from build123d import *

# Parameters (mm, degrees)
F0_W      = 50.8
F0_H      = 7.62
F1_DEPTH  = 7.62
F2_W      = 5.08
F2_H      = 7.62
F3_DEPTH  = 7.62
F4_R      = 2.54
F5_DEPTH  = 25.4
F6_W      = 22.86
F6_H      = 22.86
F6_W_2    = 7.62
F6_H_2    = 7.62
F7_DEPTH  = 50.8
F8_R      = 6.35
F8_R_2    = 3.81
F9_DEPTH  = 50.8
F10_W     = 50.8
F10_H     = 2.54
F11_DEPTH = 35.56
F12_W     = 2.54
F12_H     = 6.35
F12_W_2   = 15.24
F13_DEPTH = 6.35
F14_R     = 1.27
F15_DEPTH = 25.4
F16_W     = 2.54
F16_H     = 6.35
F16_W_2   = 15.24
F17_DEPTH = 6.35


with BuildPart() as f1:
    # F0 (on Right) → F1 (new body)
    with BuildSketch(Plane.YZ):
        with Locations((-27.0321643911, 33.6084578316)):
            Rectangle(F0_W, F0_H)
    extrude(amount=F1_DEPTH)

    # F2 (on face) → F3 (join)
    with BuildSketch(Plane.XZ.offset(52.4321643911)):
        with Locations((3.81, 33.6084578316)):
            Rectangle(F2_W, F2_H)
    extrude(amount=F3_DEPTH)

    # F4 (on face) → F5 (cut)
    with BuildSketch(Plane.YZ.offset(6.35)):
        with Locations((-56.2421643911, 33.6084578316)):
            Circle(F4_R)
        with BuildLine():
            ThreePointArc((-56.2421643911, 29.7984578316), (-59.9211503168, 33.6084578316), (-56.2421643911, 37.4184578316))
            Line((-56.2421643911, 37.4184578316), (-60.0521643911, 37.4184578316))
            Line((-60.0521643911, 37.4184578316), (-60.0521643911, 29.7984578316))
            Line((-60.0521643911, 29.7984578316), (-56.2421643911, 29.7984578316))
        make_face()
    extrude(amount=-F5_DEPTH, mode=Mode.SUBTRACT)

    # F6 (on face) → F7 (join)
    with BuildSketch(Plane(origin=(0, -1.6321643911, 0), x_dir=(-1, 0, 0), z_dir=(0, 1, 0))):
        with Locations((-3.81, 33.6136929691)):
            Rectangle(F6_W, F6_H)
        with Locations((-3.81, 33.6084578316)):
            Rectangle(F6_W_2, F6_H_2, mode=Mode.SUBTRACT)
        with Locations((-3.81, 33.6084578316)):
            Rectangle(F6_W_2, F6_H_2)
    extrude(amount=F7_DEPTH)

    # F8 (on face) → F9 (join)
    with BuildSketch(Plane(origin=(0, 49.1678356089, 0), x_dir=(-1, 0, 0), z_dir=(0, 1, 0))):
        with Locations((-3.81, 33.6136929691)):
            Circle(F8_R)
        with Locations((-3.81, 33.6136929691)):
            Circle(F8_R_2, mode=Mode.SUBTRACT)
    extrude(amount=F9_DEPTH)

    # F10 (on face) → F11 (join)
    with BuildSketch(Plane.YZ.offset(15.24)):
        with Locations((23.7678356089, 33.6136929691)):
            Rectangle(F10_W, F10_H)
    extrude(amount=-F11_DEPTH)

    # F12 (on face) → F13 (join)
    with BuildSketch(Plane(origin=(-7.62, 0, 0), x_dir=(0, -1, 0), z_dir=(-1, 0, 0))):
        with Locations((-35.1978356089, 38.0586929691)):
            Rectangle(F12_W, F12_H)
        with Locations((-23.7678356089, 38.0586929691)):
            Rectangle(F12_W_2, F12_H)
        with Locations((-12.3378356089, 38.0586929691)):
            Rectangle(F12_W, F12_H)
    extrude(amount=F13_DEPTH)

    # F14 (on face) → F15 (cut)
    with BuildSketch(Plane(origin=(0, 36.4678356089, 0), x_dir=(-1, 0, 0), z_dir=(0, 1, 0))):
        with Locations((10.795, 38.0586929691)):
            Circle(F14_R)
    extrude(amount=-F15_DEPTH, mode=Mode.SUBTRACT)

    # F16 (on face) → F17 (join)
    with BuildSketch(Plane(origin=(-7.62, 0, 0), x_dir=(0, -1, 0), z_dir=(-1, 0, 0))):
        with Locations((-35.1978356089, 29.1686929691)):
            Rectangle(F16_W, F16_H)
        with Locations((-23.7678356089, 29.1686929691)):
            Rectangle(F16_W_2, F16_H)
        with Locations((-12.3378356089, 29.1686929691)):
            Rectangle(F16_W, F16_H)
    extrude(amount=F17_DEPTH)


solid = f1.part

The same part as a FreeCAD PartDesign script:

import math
import FreeCAD as App
import Part
import Sketcher
from FreeCAD import Vector
Q = App.Units.Quantity

doc = App.newDocument("Part")
body = doc.addObject("PartDesign::Body", "Body")

sketch1 = body.newObject("Sketcher::SketchObject", "Sketch")
sketch1.AttachmentSupport = (doc.getObject("YZ_Plane"), [""])
sketch1.MapMode = "FlatFace"
sketch1.addGeometry(Part.LineSegment(Vector(-52, 37, 0), Vector(-52, 30, 0)), False)
sketch1.addGeometry(Part.LineSegment(Vector(-52, 30, 0), Vector(-2, 30, 0)), False)
sketch1.addGeometry(Part.LineSegment(Vector(-2, 30, 0), Vector(-2, 37, 0)), False)
sketch1.addGeometry(Part.LineSegment(Vector(-2, 37, 0), Vector(-52, 37, 0)), False)
sketch1.addConstraint(Sketcher.Constraint("Coincident", 0, 2, 1, 1))
sketch1.addConstraint(Sketcher.Constraint("Coincident", 1, 2, 2, 1))
sketch1.addConstraint(Sketcher.Constraint("Coincident", 2, 2, 3, 1))
sketch1.addConstraint(Sketcher.Constraint("Coincident", 3, 2, 0, 1))
sketch1.addConstraint(Sketcher.Constraint("Vertical", 0))
sketch1.addConstraint(Sketcher.Constraint("Horizontal", 1))
sketch1.addConstraint(Sketcher.Constraint("Vertical", 2))
sketch1.addConstraint(Sketcher.Constraint("Horizontal", 3))
sketch1.addConstraint(Sketcher.Constraint("DistanceX", 1, 1, 1, 2, Q("2 in")))
sketch1.addConstraint(Sketcher.Constraint("DistanceY", 0, 2, 0, 1, Q("0.3 in")))
sketch1.addConstraint(Sketcher.Constraint("DistanceX", 0, 2, -1, 1, Q("52.432164 mm")))
sketch1.addConstraint(Sketcher.Constraint("DistanceY", -1, 1, 0, 2, Q("29.798458 mm")))
pad1 = body.newObject("PartDesign::Pad", "Pad")
pad1.Profile = sketch1
pad1.Length = Q("0.3 in")

sketch2 = body.newObject("Sketcher::SketchObject", "Sketch001")
sketch2.AttachmentSupport = (doc.getObject("XZ_Plane"), [""])
sketch2.MapMode = "FlatFace"
sketch2.AttachmentOffset = App.Placement(Vector(0, 0, 52.432164), App.Rotation())
sketch2.addGeometry(Part.LineSegment(Vector(1, 37, 0), Vector(1, 30, 0)), False)
sketch2.addGeometry(Part.LineSegment(Vector(1, 30, 0), Vector(6, 30, 0)), False)
sketch2.addGeometry(Part.LineSegment(Vector(6, 30, 0), Vector(6, 37, 0)), False)
sketch2.addGeometry(Part.LineSegment(Vector(6, 37, 0), Vector(1, 37, 0)), False)
sketch2.addConstraint(Sketcher.Constraint("Coincident", 0, 2, 1, 1))
sketch2.addConstraint(Sketcher.Constraint("Coincident", 1, 2, 2, 1))
sketch2.addConstraint(Sketcher.Constraint("Coincident", 2, 2, 3, 1))
sketch2.addConstraint(Sketcher.Constraint("Coincident", 3, 2, 0, 1))
sketch2.addConstraint(Sketcher.Constraint("Vertical", 0))
sketch2.addConstraint(Sketcher.Constraint("Horizontal", 1))
sketch2.addConstraint(Sketcher.Constraint("Vertical", 2))
sketch2.addConstraint(Sketcher.Constraint("Horizontal", 3))
sketch2.addConstraint(Sketcher.Constraint("DistanceX", 1, 1, 1, 2, Q("0.2 in")))
sketch2.addConstraint(Sketcher.Constraint("DistanceY", 0, 2, 0, 1, Q("0.3 in")))
sketch2.addConstraint(Sketcher.Constraint("DistanceX", -1, 1, 0, 2, Q("0.05 in")))
sketch2.addConstraint(Sketcher.Constraint("DistanceY", -1, 1, 0, 2, Q("29.798458 mm")))
pad2 = body.newObject("PartDesign::Pad", "Pad001")
pad2.Profile = sketch2
pad2.Length = Q("0.3 in")

sketch3 = body.newObject("Sketcher::SketchObject", "Sketch002")
sketch3.AttachmentSupport = (doc.getObject("YZ_Plane"), [""])
sketch3.MapMode = "FlatFace"
sketch3.AttachmentOffset = App.Placement(Vector(0, 0, 0.25 * 25.4), App.Rotation())
sketch3.addGeometry(Part.Circle(Vector(-56.2, 33.6, 0), Vector(0, 0, 1), 2.5), False)
sketch3.addGeometry(Part.ArcOfCircle(Part.Circle(Vector(-56.1, 33.6, 0), Vector(0, 0, 1), 3.8), math.radians(92), math.radians(268)), False)
sketch3.addGeometry(Part.LineSegment(Vector(-56.2, 37.4, 0), Vector(-60.1, 37.4, 0)), False)
sketch3.addGeometry(Part.LineSegment(Vector(-60.1, 37.4, 0), Vector(-60.1, 29.8, 0)), False)
sketch3.addGeometry(Part.LineSegment(Vector(-60.1, 29.8, 0), Vector(-56.2, 29.8, 0)), False)
sketch3.addConstraint(Sketcher.Constraint("Coincident", 1, 1, 2, 1))
sketch3.addConstraint(Sketcher.Constraint("Coincident", 2, 2, 3, 1))
sketch3.addConstraint(Sketcher.Constraint("Coincident", 3, 2, 4, 1))
sketch3.addConstraint(Sketcher.Constraint("Coincident", 4, 2, 1, 2))
sketch3.addConstraint(Sketcher.Constraint("Horizontal", 2))
sketch3.addConstraint(Sketcher.Constraint("Vertical", 3))
sketch3.addConstraint(Sketcher.Constraint("Horizontal", 4))
sketch3.addConstraint(Sketcher.Constraint("Horizontal", 0, 3, 1, 3))
sketch3.addConstraint(Sketcher.Constraint("Vertical", 0, 3, 1, 1))
sketch3.addConstraint(Sketcher.Constraint("Vertical", 1, 1, 4, 2))
sketch3.addConstraint(Sketcher.Constraint("Diameter", 0, Q("0.2 in")))
sketch3.addConstraint(Sketcher.Constraint("DistanceY", 3, 2, 3, 1, Q("0.3 in")))
sketch3.addConstraint(Sketcher.Constraint("DistanceX", 2, 2, 2, 1, Q("0.15 in")))
sketch3.addConstraint(Sketcher.Constraint("Radius", 1, Q("3.812333 mm")))
sketch3.addConstraint(Sketcher.Constraint("DistanceX", 0, 3, -1, 1, Q("56.242164 mm")))
sketch3.addConstraint(Sketcher.Constraint("DistanceY", -1, 1, 0, 3, Q("33.608458 mm")))
pocket1 = body.newObject("PartDesign::Pocket", "Pocket")
pocket1.Profile = sketch3
pocket1.Length = Q("1 in")

sketch4 = body.newObject("Sketcher::SketchObject", "Sketch003")
sketch4.AttachmentSupport = (doc.getObject("XZ_Plane"), [""])
sketch4.MapMode = "FlatFace"
sketch4.AttachmentOffset = App.Placement(Vector(0, 0, 1.632164), App.Rotation())
sketch4.addGeometry(Part.LineSegment(Vector(15, 45, 0), Vector(15, 22, 0)), False)
sketch4.addGeometry(Part.LineSegment(Vector(15, 22, 0), Vector(-8, 22, 0)), False)
sketch4.addGeometry(Part.LineSegment(Vector(-8, 22, 0), Vector(-8, 45, 0)), False)
sketch4.addGeometry(Part.LineSegment(Vector(-8, 45, 0), Vector(15, 45, 0)), False)
sketch4.addConstraint(Sketcher.Constraint("Coincident", 0, 2, 1, 1))
sketch4.addConstraint(Sketcher.Constraint("Coincident", 1, 2, 2, 1))
sketch4.addConstraint(Sketcher.Constraint("Coincident", 2, 2, 3, 1))
sketch4.addConstraint(Sketcher.Constraint("Coincident", 3, 2, 0, 1))
sketch4.addConstraint(Sketcher.Constraint("Vertical", 0))
sketch4.addConstraint(Sketcher.Constraint("Horizontal", 1))
sketch4.addConstraint(Sketcher.Constraint("Vertical", 2))
sketch4.addConstraint(Sketcher.Constraint("Horizontal", 3))
sketch4.addConstraint(Sketcher.Constraint("Equal", 3, 0))
sketch4.addConstraint(Sketcher.Constraint("DistanceX", 1, 2, 1, 1, Q("0.9 in")))
sketch4.addConstraint(Sketcher.Constraint("DistanceX", -1, 1, 0, 2, Q("0.6 in")))
sketch4.addConstraint(Sketcher.Constraint("DistanceY", -1, 1, 0, 2, Q("22.183693 mm")))
pad3 = body.newObject("PartDesign::Pad", "Pad002")
pad3.Profile = sketch4
pad3.Length = Q("2 in")
pad3.Reversed = True

sketch5 = body.newObject("Sketcher::SketchObject", "Sketch004")
sketch5.AttachmentSupport = (doc.getObject("XZ_Plane"), [""])
sketch5.MapMode = "FlatFace"
sketch5.AttachmentOffset = App.Placement(Vector(0, 0, -49.167836), App.Rotation())
sketch5.addGeometry(Part.Circle(Vector(3.8, 33.6, 0), Vector(0, 0, 1), 6.3), False)
sketch5.addGeometry(Part.Circle(Vector(3.8, 33.6, 0), Vector(0, 0, 1), 3.8), False)
sketch5.addConstraint(Sketcher.Constraint("Coincident", 1, 3, 0, 3))
sketch5.addConstraint(Sketcher.Constraint("Diameter", 0, Q("0.5 in")))
sketch5.addConstraint(Sketcher.Constraint("Diameter", 1, Q("0.3 in")))
sketch5.addConstraint(Sketcher.Constraint("DistanceX", -1, 1, 0, 3, Q("0.15 in")))
sketch5.addConstraint(Sketcher.Constraint("DistanceY", -1, 1, 0, 3, Q("33.613693 mm")))
pad4 = body.newObject("PartDesign::Pad", "Pad003")
pad4.Profile = sketch5
pad4.Length = Q("2 in")
pad4.Reversed = True

sketch6 = body.newObject("Sketcher::SketchObject", "Sketch005")
sketch6.AttachmentSupport = (doc.getObject("YZ_Plane"), [""])
sketch6.MapMode = "FlatFace"
sketch6.AttachmentOffset = App.Placement(Vector(0, 0, 0.6 * 25.4), App.Rotation())
sketch6.addGeometry(Part.LineSegment(Vector(-1.6, 34.9, 0), Vector(-1.6, 32.3, 0)), False)
sketch6.addGeometry(Part.LineSegment(Vector(-1.6, 32.3, 0), Vector(49.2, 32.3, 0)), False)
sketch6.addGeometry(Part.LineSegment(Vector(49.2, 32.3, 0), Vector(49.2, 34.9, 0)), False)
sketch6.addGeometry(Part.LineSegment(Vector(49.2, 34.9, 0), Vector(-1.6, 34.9, 0)), False)
sketch6.addConstraint(Sketcher.Constraint("Coincident", 0, 2, 1, 1))
sketch6.addConstraint(Sketcher.Constraint("Coincident", 1, 2, 2, 1))
sketch6.addConstraint(Sketcher.Constraint("Coincident", 2, 2, 3, 1))
sketch6.addConstraint(Sketcher.Constraint("Coincident", 3, 2, 0, 1))
sketch6.addConstraint(Sketcher.Constraint("Vertical", 0))
sketch6.addConstraint(Sketcher.Constraint("Horizontal", 1))
sketch6.addConstraint(Sketcher.Constraint("Vertical", 2))
sketch6.addConstraint(Sketcher.Constraint("Horizontal", 3))
sketch6.addConstraint(Sketcher.Constraint("DistanceX", 1, 1, 1, 2, Q("2 in")))
sketch6.addConstraint(Sketcher.Constraint("DistanceY", 0, 2, 0, 1, Q("0.1 in")))
sketch6.addConstraint(Sketcher.Constraint("DistanceX", 0, 2, -1, 1, Q("1.632164 mm")))
sketch6.addConstraint(Sketcher.Constraint("DistanceY", -1, 1, 0, 2, Q("32.343693 mm")))
pad5 = body.newObject("PartDesign::Pad", "Pad004")
pad5.Profile = sketch6
pad5.Length = Q("1.4 in")
pad5.Reversed = True

sketch7 = body.newObject("Sketcher::SketchObject", "Sketch006")
sketch7.AttachmentSupport = (doc.getObject("YZ_Plane"), [""])
sketch7.MapMode = "FlatFace"
sketch7.AttachmentOffset = App.Placement(Vector(0, 0, -0.3 * 25.4), App.Rotation())
sketch7.addGeometry(Part.LineSegment(Vector(36.5, 41.2, 0), Vector(36.5, 34.9, 0)), False)
sketch7.addGeometry(Part.LineSegment(Vector(36.5, 34.9, 0), Vector(33.9, 34.9, 0)), False)
sketch7.addGeometry(Part.LineSegment(Vector(33.9, 34.9, 0), Vector(33.9, 41.2, 0)), False)
sketch7.addGeometry(Part.LineSegment(Vector(33.9, 41.2, 0), Vector(36.5, 41.2, 0)), False)
sketch7.addGeometry(Part.LineSegment(Vector(31.4, 41.2, 0), Vector(31.4, 34.9, 0)), False)
sketch7.addGeometry(Part.LineSegment(Vector(31.4, 34.9, 0), Vector(16.1, 34.9, 0)), False)
sketch7.addGeometry(Part.LineSegment(Vector(16.1, 34.9, 0), Vector(16.1, 41.2, 0)), False)
sketch7.addGeometry(Part.LineSegment(Vector(16.1, 41.2, 0), Vector(31.4, 41.2, 0)), False)
sketch7.addGeometry(Part.LineSegment(Vector(13.6, 41.2, 0), Vector(13.6, 34.9, 0)), False)
sketch7.addGeometry(Part.LineSegment(Vector(13.6, 34.9, 0), Vector(11.1, 34.9, 0)), False)
sketch7.addGeometry(Part.LineSegment(Vector(11.1, 34.9, 0), Vector(11.1, 41.2, 0)), False)
sketch7.addGeometry(Part.LineSegment(Vector(11.1, 41.2, 0), Vector(13.6, 41.2, 0)), False)
sketch7.addConstraint(Sketcher.Constraint("Coincident", 0, 2, 1, 1))
sketch7.addConstraint(Sketcher.Constraint("Coincident", 1, 2, 2, 1))
sketch7.addConstraint(Sketcher.Constraint("Coincident", 2, 2, 3, 1))
sketch7.addConstraint(Sketcher.Constraint("Coincident", 3, 2, 0, 1))
sketch7.addConstraint(Sketcher.Constraint("Coincident", 4, 2, 5, 1))
sketch7.addConstraint(Sketcher.Constraint("Coincident", 5, 2, 6, 1))
sketch7.addConstraint(Sketcher.Constraint("Coincident", 6, 2, 7, 1))
sketch7.addConstraint(Sketcher.Constraint("Coincident", 7, 2, 4, 1))
sketch7.addConstraint(Sketcher.Constraint("Coincident", 8, 2, 9, 1))
sketch7.addConstraint(Sketcher.Constraint("Coincident", 9, 2, 10, 1))
sketch7.addConstraint(Sketcher.Constraint("Coincident", 10, 2, 11, 1))
sketch7.addConstraint(Sketcher.Constraint("Coincident", 11, 2, 8, 1))
sketch7.addConstraint(Sketcher.Constraint("Vertical", 0))
sketch7.addConstraint(Sketcher.Constraint("Horizontal", 1))
sketch7.addConstraint(Sketcher.Constraint("Vertical", 2))
sketch7.addConstraint(Sketcher.Constraint("Horizontal", 3))
sketch7.addConstraint(Sketcher.Constraint("Vertical", 4))
sketch7.addConstraint(Sketcher.Constraint("Horizontal", 5))
sketch7.addConstraint(Sketcher.Constraint("Vertical", 6))
sketch7.addConstraint(Sketcher.Constraint("Horizontal", 7))
sketch7.addConstraint(Sketcher.Constraint("Vertical", 8))
sketch7.addConstraint(Sketcher.Constraint("Horizontal", 9))
sketch7.addConstraint(Sketcher.Constraint("Vertical", 10))
sketch7.addConstraint(Sketcher.Constraint("Horizontal", 11))
sketch7.addConstraint(Sketcher.Constraint("Horizontal", 1, 2, 4, 2))
sketch7.addConstraint(Sketcher.Constraint("Horizontal", 3, 2, 6, 2))
sketch7.addConstraint(Sketcher.Constraint("Horizontal", 5, 2, 8, 2))
sketch7.addConstraint(Sketcher.Constraint("Horizontal", 7, 2, 10, 2))
sketch7.addConstraint(Sketcher.Constraint("Equal", 3, 9))
sketch7.addConstraint(Sketcher.Constraint("DistanceX", 1, 2, 1, 1, Q("0.1 in")))
sketch7.addConstraint(Sketcher.Constraint("DistanceX", 5, 2, 5, 1, Q("0.6 in")))
sketch7.addConstraint(Sketcher.Constraint("DistanceY", 0, 2, 0, 1, Q("0.25 in")))
sketch7.addConstraint(Sketcher.Constraint("DistanceX", 4, 2, 1, 2, Q("0.1 in")))
sketch7.addConstraint(Sketcher.Constraint("DistanceX", 8, 2, 5, 2, Q("0.1 in")))
sketch7.addConstraint(Sketcher.Constraint("DistanceX", -1, 1, 0, 2, Q("36.467836 mm")))
sketch7.addConstraint(Sketcher.Constraint("DistanceY", -1, 1, 0, 2, Q("34.883693 mm")))
pad6 = body.newObject("PartDesign::Pad", "Pad005")
pad6.Profile = sketch7
pad6.Length = Q("0.25 in")
pad6.Reversed = True

sketch8 = body.newObject("Sketcher::SketchObject", "Sketch007")
sketch8.AttachmentSupport = (doc.getObject("XZ_Plane"), [""])
sketch8.MapMode = "FlatFace"
sketch8.AttachmentOffset = App.Placement(Vector(0, 0, -36.467836), App.Rotation())
sketch8.addGeometry(Part.Circle(Vector(-10.8, 38.1, 0), Vector(0, 0, 1), 1.3), False)
sketch8.addConstraint(Sketcher.Constraint("Diameter", 0, Q("0.1 in")))
sketch8.addConstraint(Sketcher.Constraint("DistanceX", 0, 3, -1, 1, Q("0.425 in")))
sketch8.addConstraint(Sketcher.Constraint("DistanceY", -1, 1, 0, 3, Q("38.058693 mm")))
pocket2 = body.newObject("PartDesign::Pocket", "Pocket001")
pocket2.Profile = sketch8
pocket2.Length = Q("1 in")
pocket2.Reversed = True

sketch9 = body.newObject("Sketcher::SketchObject", "Sketch008")
sketch9.AttachmentSupport = (doc.getObject("YZ_Plane"), [""])
sketch9.MapMode = "FlatFace"
sketch9.AttachmentOffset = App.Placement(Vector(0, 0, -0.3 * 25.4), App.Rotation())
sketch9.addGeometry(Part.LineSegment(Vector(36.5, 32.3, 0), Vector(36.5, 26, 0)), False)
sketch9.addGeometry(Part.LineSegment(Vector(36.5, 26, 0), Vector(33.9, 26, 0)), False)
sketch9.addGeometry(Part.LineSegment(Vector(33.9, 26, 0), Vector(33.9, 32.3, 0)), False)
sketch9.addGeometry(Part.LineSegment(Vector(33.9, 32.3, 0), Vector(36.5, 32.3, 0)), False)
sketch9.addGeometry(Part.LineSegment(Vector(31.4, 32.3, 0), Vector(31.4, 26, 0)), False)
sketch9.addGeometry(Part.LineSegment(Vector(31.4, 26, 0), Vector(16.1, 26, 0)), False)
sketch9.addGeometry(Part.LineSegment(Vector(16.1, 26, 0), Vector(16.1, 32.3, 0)), False)
sketch9.addGeometry(Part.LineSegment(Vector(16.1, 32.3, 0), Vector(31.4, 32.3, 0)), False)
sketch9.addGeometry(Part.LineSegment(Vector(13.6, 32.3, 0), Vector(13.6, 26, 0)), False)
sketch9.addGeometry(Part.LineSegment(Vector(13.6, 26, 0), Vector(11.1, 26, 0)), False)
sketch9.addGeometry(Part.LineSegment(Vector(11.1, 26, 0), Vector(11.1, 32.3, 0)), False)
sketch9.addGeometry(Part.LineSegment(Vector(11.1, 32.3, 0), Vector(13.6, 32.3, 0)), False)
sketch9.addConstraint(Sketcher.Constraint("Coincident", 0, 2, 1, 1))
sketch9.addConstraint(Sketcher.Constraint("Coincident", 1, 2, 2, 1))
sketch9.addConstraint(Sketcher.Constraint("Coincident", 2, 2, 3, 1))
sketch9.addConstraint(Sketcher.Constraint("Coincident", 3, 2, 0, 1))
sketch9.addConstraint(Sketcher.Constraint("Coincident", 4, 2, 5, 1))
sketch9.addConstraint(Sketcher.Constraint("Coincident", 5, 2, 6, 1))
sketch9.addConstraint(Sketcher.Constraint("Coincident", 6, 2, 7, 1))
sketch9.addConstraint(Sketcher.Constraint("Coincident", 7, 2, 4, 1))
sketch9.addConstraint(Sketcher.Constraint("Coincident", 8, 2, 9, 1))
sketch9.addConstraint(Sketcher.Constraint("Coincident", 9, 2, 10, 1))
sketch9.addConstraint(Sketcher.Constraint("Coincident", 10, 2, 11, 1))
sketch9.addConstraint(Sketcher.Constraint("Coincident", 11, 2, 8, 1))
sketch9.addConstraint(Sketcher.Constraint("Vertical", 0))
sketch9.addConstraint(Sketcher.Constraint("Horizontal", 1))
sketch9.addConstraint(Sketcher.Constraint("Vertical", 2))
sketch9.addConstraint(Sketcher.Constraint("Horizontal", 3))
sketch9.addConstraint(Sketcher.Constraint("Vertical", 4))
sketch9.addConstraint(Sketcher.Constraint("Horizontal", 5))
sketch9.addConstraint(Sketcher.Constraint("Vertical", 6))
sketch9.addConstraint(Sketcher.Constraint("Horizontal", 7))
sketch9.addConstraint(Sketcher.Constraint("Vertical", 8))
sketch9.addConstraint(Sketcher.Constraint("Horizontal", 9))
sketch9.addConstraint(Sketcher.Constraint("Vertical", 10))
sketch9.addConstraint(Sketcher.Constraint("Horizontal", 11))
sketch9.addConstraint(Sketcher.Constraint("Horizontal", 1, 2, 4, 2))
sketch9.addConstraint(Sketcher.Constraint("Horizontal", 3, 2, 6, 2))
sketch9.addConstraint(Sketcher.Constraint("Horizontal", 5, 2, 8, 2))
sketch9.addConstraint(Sketcher.Constraint("Horizontal", 7, 2, 10, 2))
sketch9.addConstraint(Sketcher.Constraint("Equal", 3, 9))
sketch9.addConstraint(Sketcher.Constraint("DistanceX", 1, 2, 1, 1, Q("0.1 in")))
sketch9.addConstraint(Sketcher.Constraint("DistanceX", 5, 2, 5, 1, Q("0.6 in")))
sketch9.addConstraint(Sketcher.Constraint("DistanceY", 0, 2, 0, 1, Q("0.25 in")))
sketch9.addConstraint(Sketcher.Constraint("DistanceX", 4, 2, 1, 2, Q("0.1 in")))
sketch9.addConstraint(Sketcher.Constraint("DistanceX", 8, 2, 5, 2, Q("0.1 in")))
sketch9.addConstraint(Sketcher.Constraint("DistanceX", -1, 1, 0, 2, Q("36.467836 mm")))
sketch9.addConstraint(Sketcher.Constraint("DistanceY", -1, 1, 0, 2, Q("25.993693 mm")))
pad7 = body.newObject("PartDesign::Pad", "Pad006")
pad7.Profile = sketch9
pad7.Length = Q("0.25 in")
pad7.Reversed = True

doc.recompute()
